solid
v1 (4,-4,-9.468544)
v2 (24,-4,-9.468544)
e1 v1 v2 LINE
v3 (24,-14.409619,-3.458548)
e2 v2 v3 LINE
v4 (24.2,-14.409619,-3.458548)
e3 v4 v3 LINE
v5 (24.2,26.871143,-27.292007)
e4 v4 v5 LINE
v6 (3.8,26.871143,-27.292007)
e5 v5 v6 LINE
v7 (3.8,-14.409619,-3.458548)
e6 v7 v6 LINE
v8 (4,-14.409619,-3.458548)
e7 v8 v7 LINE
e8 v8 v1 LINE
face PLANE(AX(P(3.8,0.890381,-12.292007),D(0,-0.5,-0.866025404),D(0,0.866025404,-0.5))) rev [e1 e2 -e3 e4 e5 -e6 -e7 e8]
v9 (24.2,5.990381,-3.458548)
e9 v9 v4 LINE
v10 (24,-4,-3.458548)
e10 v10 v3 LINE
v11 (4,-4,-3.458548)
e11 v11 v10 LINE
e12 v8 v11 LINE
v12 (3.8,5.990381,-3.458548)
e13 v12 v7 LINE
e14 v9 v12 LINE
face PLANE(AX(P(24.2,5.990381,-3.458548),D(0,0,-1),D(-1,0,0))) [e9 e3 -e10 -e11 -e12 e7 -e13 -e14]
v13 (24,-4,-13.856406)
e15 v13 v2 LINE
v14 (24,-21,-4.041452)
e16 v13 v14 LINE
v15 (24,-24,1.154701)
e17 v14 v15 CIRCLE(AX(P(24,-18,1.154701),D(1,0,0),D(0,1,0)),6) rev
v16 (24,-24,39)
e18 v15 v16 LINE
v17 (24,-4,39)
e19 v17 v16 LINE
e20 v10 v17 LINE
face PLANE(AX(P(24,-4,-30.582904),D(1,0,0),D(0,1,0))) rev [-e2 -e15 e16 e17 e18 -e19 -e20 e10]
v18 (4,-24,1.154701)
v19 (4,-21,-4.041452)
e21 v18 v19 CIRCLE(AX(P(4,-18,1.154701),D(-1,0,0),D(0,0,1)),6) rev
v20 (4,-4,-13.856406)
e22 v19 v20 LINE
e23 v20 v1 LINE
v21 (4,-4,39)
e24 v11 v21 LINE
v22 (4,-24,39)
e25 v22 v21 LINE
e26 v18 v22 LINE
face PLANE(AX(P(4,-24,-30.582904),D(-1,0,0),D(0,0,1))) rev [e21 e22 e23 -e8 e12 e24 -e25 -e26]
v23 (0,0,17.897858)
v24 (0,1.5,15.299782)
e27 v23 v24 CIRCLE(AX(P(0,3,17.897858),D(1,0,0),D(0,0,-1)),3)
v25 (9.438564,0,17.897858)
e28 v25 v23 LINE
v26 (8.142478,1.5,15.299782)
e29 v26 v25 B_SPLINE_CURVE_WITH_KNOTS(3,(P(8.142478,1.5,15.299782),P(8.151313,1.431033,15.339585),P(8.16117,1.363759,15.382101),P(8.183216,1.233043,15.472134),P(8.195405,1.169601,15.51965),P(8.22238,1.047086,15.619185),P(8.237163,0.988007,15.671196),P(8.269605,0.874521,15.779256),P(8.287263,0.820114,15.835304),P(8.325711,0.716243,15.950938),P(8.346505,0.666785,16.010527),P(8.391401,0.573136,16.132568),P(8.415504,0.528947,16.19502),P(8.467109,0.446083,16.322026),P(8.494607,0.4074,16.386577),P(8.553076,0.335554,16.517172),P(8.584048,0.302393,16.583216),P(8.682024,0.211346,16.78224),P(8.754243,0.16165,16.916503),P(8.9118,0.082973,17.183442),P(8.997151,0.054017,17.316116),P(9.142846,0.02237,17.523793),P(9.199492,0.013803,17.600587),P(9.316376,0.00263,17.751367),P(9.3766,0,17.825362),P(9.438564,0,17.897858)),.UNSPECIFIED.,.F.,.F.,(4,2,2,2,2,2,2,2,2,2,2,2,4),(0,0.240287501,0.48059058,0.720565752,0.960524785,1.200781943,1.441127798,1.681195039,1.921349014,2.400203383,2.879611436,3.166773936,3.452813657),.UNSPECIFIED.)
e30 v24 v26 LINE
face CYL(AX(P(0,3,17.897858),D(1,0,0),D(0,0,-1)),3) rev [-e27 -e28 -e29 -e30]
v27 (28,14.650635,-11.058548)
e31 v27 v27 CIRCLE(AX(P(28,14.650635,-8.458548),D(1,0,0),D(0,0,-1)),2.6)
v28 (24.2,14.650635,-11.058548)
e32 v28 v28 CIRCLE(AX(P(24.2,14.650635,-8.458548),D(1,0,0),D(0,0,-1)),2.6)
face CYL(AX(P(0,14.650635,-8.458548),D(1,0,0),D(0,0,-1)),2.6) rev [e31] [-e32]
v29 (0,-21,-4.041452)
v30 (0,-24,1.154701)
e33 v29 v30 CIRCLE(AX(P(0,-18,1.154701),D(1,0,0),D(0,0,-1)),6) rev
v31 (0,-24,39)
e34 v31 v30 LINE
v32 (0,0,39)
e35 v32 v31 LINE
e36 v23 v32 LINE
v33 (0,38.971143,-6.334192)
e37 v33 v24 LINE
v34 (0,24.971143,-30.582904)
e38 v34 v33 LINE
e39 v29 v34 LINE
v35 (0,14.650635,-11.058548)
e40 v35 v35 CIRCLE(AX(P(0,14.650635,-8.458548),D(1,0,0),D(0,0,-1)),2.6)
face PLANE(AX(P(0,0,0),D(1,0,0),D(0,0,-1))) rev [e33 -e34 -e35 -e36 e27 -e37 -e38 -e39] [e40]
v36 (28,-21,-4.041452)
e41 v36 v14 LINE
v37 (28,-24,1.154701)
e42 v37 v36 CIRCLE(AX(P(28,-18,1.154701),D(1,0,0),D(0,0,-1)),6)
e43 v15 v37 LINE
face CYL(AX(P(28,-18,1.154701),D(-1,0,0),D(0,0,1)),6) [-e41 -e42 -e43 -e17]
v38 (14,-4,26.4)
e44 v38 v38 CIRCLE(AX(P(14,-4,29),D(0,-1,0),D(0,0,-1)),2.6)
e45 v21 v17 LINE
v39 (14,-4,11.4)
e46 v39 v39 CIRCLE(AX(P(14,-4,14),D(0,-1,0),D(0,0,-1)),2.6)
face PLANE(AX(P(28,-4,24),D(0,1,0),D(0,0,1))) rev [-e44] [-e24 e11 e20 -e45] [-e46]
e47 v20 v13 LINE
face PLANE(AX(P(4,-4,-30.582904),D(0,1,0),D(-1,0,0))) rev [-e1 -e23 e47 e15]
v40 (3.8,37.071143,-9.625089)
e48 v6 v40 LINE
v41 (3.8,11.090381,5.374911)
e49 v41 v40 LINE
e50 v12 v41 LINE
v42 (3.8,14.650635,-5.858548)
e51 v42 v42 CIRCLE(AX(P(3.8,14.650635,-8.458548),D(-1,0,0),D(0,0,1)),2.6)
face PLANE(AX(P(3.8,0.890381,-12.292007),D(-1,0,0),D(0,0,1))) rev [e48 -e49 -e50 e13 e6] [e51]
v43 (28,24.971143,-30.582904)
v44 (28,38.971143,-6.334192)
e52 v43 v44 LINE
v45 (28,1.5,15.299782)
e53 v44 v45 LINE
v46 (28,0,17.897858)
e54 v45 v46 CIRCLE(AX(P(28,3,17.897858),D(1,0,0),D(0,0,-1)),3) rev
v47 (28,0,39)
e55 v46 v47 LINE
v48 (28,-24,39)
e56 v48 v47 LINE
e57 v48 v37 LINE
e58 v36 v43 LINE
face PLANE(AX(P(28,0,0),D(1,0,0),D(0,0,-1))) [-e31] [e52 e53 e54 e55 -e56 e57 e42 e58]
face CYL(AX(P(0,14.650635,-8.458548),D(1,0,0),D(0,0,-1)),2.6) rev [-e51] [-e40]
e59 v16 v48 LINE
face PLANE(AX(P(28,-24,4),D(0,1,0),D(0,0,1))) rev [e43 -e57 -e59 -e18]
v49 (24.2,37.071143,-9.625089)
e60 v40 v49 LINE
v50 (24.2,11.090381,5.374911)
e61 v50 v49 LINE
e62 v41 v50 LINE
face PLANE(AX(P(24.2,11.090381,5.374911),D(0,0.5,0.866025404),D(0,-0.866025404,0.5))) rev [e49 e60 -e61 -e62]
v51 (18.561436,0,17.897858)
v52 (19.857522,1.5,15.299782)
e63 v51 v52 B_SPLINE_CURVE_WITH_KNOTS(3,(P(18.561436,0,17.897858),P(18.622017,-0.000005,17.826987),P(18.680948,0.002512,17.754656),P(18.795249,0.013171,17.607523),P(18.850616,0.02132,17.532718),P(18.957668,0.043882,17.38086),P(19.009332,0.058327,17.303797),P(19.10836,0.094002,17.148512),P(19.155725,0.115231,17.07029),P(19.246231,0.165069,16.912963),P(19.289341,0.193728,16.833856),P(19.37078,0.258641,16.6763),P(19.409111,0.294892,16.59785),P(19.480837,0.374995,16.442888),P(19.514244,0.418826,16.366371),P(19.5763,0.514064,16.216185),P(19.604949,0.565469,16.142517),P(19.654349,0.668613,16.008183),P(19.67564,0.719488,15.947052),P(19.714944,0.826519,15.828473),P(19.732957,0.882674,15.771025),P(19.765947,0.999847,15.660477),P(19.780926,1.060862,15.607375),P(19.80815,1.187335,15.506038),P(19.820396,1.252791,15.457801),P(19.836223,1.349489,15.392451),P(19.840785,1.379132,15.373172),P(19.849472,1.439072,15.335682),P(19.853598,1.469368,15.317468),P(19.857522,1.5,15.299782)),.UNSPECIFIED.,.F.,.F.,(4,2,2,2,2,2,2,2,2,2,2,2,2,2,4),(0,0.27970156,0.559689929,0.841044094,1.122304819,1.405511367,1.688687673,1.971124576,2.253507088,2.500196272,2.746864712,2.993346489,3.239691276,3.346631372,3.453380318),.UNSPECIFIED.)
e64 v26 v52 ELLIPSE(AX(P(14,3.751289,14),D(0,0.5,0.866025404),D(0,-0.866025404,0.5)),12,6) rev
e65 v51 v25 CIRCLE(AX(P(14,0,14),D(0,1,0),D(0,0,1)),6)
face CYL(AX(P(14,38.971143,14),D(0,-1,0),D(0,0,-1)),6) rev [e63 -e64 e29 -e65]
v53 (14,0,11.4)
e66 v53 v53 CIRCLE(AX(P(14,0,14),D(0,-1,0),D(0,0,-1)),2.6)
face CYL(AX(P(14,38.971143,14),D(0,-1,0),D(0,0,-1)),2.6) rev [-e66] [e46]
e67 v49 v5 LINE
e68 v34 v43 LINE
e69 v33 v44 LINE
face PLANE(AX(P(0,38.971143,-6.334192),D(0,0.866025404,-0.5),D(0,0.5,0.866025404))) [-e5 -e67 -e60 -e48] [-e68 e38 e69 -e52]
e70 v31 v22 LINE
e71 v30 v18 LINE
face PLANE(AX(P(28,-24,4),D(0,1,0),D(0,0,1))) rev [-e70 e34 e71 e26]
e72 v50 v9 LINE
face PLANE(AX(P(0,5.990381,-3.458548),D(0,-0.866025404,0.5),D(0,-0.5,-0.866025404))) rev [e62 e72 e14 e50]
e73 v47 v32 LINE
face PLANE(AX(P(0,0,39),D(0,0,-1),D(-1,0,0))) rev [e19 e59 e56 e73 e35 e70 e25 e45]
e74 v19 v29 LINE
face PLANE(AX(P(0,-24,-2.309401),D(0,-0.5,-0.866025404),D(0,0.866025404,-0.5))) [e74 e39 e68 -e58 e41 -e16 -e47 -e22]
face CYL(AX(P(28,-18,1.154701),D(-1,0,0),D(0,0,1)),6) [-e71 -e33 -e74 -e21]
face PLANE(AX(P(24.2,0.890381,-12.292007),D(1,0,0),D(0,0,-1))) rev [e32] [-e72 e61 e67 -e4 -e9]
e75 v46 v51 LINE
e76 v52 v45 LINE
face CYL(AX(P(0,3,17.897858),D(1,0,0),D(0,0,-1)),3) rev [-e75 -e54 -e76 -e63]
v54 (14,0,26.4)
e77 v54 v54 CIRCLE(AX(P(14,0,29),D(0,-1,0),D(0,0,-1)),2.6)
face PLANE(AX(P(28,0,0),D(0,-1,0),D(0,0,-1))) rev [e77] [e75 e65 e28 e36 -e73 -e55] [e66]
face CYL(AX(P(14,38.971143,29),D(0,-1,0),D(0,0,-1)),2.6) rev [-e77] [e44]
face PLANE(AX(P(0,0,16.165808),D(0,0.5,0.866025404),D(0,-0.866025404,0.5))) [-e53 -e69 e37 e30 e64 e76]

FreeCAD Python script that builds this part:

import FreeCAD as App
import Part
import Sketcher

V = App.Vector
Q = App.Units.Quantity


def edges_at(feature, points):
    """Names of the edges that pass closest to the given points."""
    edges = feature.Shape.Edges
    near = lambda p: min(range(len(edges)), key=lambda i: edges[i].distToShape(Part.Vertex(*p))[0])
    return sorted({f"Edge{near(p) + 1}" for p in points})


def add_polygon(sketch, points):
    """Adds a closed chain of lines whose ends are joined by coincident constraints."""
    first, n = sketch.GeometryCount, len(points)
    for a, b in zip(points, points[1:] + points[:1]):
        sketch.addGeometry(Part.LineSegment(App.Vector(*a, 0), App.Vector(*b, 0)), False)
    for i in range(n):
        sketch.addConstraint(Sketcher.Constraint("Coincident", first + i, 2, first + (i + 1) % n, 1))

doc = App.newDocument("Part")
params = doc.addObject("Spreadsheet::Sheet", "Params")
for row, (alias, value) in enumerate([
    ("sketch1_width", "4 mm"),
    ("sketch1_width2", "20 mm"),
    ("pad1_length", "28 mm"),
    ("sketch2_width", "24 mm"),
    ("sketch2_length", "28 mm"),
    ("sketch2_length2", "45 mm"),
    ("pad2_length", "28 mm"),
    ("sketch3_width", "20.4 mm"),
    ("pocket1_length", "30 mm"),
    ("sketch4_width", "20.4 mm"),
    ("pocket2_length", "20.4 mm"),
    ("sketch5_diameter", "5.2 mm"),
    ("sketch6_width", "20 mm"),
    ("sketch7_width", "4 mm"),
    ("sketch7_height", "20 mm"),
    ("pad3_length", "20 mm"),
    ("sketch8_width", "28 mm"),
    ("sketch8_width2", "4 mm"),
    ("sketch8_height", "24 mm"),
    ("pad4_length", "15 mm"),
    ("sketch9_diameter", "5.2 mm"),
    ("sketch10_diameter", "12 mm"),
    ("fillet_radius", "3 mm"),
    ("fillet2_radius", "6 mm"),
], start=1):
    params.set(f"A{row}", alias)
    params.set(f"B{row}", "=" + value)
    params.setAlias(f"B{row}", alias)

body = doc.addObject("PartDesign::Body", "Body")

# Sketch on YZ plane
sketch1 = body.newObject("Sketcher::SketchObject", "Sketch")
sketch1.AttachmentSupport = (doc.getObject("YZ_Plane"), [""])
sketch1.MapMode = "FlatFace"
add_polygon(sketch1, [(0, 0), (0, 24), (-4, 24), (-4, 4), (-24, 4), (-24, 0)])  # lines 0-5
sketch1.addConstraint([
    Sketcher.Constraint("Vertical", 0),
    Sketcher.Constraint("Horizontal", 1),
    Sketcher.Constraint("Vertical", 2),
    Sketcher.Constraint("Horizontal", 3),
    Sketcher.Constraint("Vertical", 4),
    Sketcher.Constraint("Horizontal", 5),
    Sketcher.Constraint("Coincident", 5, 2, -1, 1),
    Sketcher.Constraint("Equal", 5, 0),
    Sketcher.Constraint("Equal", 3, 2),
    Sketcher.Constraint("DistanceX", 1, 2, 1, 1, Q("4 mm")),
    Sketcher.Constraint("DistanceX", 3, 2, 3, 1, Q("20 mm")),
])
sketch1.setExpression("Constraints[15]", "Params.sketch1_width")
sketch1.setExpression("Constraints[16]", "Params.sketch1_width2")
pad1 = body.newObject("PartDesign::Pad", "Pad")
pad1.Profile = sketch1
pad1.setExpression("Length", "Params.pad1_length")

# Sketch on YZ plane
sketch2 = body.newObject("Sketcher::SketchObject", "Sketch001")
sketch2.AttachmentSupport = (doc.getObject("YZ_Plane"), [""])
sketch2.MapMode = "FlatFace"
sketch2.AttachmentOffset = App.Placement(V(0, 0, 28), App.Rotation())
add_polygon(sketch2, [(-24, -2.3), (25, -30.6), (39, -6.3), (0, 16.2), (0, 0), (-24, 0)])  # lines 0-5
sketch2.addConstraint([
    Sketcher.Constraint("Vertical", 3),
    Sketcher.Constraint("Horizontal", 4),
    Sketcher.Constraint("Vertical", 5),
    Sketcher.Constraint("Coincident", 3, 2, -1, 1),
    Sketcher.Constraint("Perpendicular", 0, 1),
    Sketcher.Constraint("Perpendicular", 1, 2),
    Sketcher.Constraint("DistanceX", 4, 2, 4, 1, Q("24 mm")),
    Sketcher.Constraint("Angle", 0, Q("-30 deg")),
    Sketcher.Constraint("Distance", 1, Q("28 mm")),
    Sketcher.Constraint("Distance", 2, Q("45 mm")),
    Sketcher.Constraint("DistanceY", 5, 2, 5, 1, Q("2.309401 mm")),
])
sketch2.setExpression("Constraints[12]", "Params.sketch2_width")
sketch2.setExpression("Constraints[14]", "Params.sketch2_length")
sketch2.setExpression("Constraints[15]", "Params.sketch2_length2")
pad2 = body.newObject("PartDesign::Pad", "Pad001")
pad2.Profile = sketch2
pad2.setExpression("Length", "Params.pad2_length")
pad2.Reversed = True

# Sketch on an angled plane
sketch3 = body.newObject("Sketcher::SketchObject", "Sketch002")
sketch3.Placement = App.Placement(V(0, 31.971143, -18.458548), App.Rotation(V(1, 0, 0), V(0, -0.5, -0.866025404), V(0, 0.866025404, -0.5), "ZXY"))
add_polygon(sketch3, [(4, 10), (4, -10), (24, -10), (24, 10)])  # lines 0-3
sketch3.addConstraint([
    Sketcher.Constraint("Vertical", 0),
    Sketcher.Constraint("Horizontal", 1),
    Sketcher.Constraint("Vertical", 2),
    Sketcher.Constraint("Horizontal", 3),
    Sketcher.Constraint("Equal", 3, 0),
    Sketcher.Constraint("DistanceX", 1, 1, 1, 2, Q("20.4 mm")),
    Sketcher.Constraint("DistanceX", -1, 1, 0, 2, Q("3.8 mm")),
    Sketcher.Constraint("DistanceY", 0, 2, -1, 1, Q("10.2 mm")),
])
sketch3.setExpression("Constraints[9]", "Params.sketch3_width")
pocket1 = body.newObject("PartDesign::Pocket", "Pocket")
pocket1.Profile = sketch3
pocket1.setExpression("Length", "Params.pocket1_length")

# Sketch on YZ plane
sketch4 = body.newObject("Sketcher::SketchObject", "Sketch003")
sketch4.AttachmentSupport = (doc.getObject("YZ_Plane"), [""])
sketch4.MapMode = "FlatFace"
sketch4.AttachmentOffset = App.Placement(V(0, 0, 3.8), App.Rotation())
add_polygon(sketch4, [(1, -12), (6, -3), (-14, -3)])  # lines 0-2
sketch4.addConstraint([
    Sketcher.Constraint("Horizontal", 1),
    Sketcher.Constraint("Perpendicular", 0, 2),
    Sketcher.Constraint("Angle", 0, Q("60 deg")),
    Sketcher.Constraint("DistanceX", 1, 2, 1, 1, Q("20.4 mm")),
    Sketcher.Constraint("DistanceX", -1, 1, 0, 2, Q("5.990381 mm")),
    Sketcher.Constraint("DistanceY", 0, 2, -1, 1, Q("3.458548 mm")),
])
sketch4.setExpression("Constraints[6]", "Params.sketch4_width")
pocket2 = body.newObject("PartDesign::Pocket", "Pocket001")
pocket2.Profile = sketch4
pocket2.setExpression("Length", "Params.pocket2_length")
pocket2.Reversed = True

# Sketch on YZ plane
sketch5 = body.newObject("Sketcher::SketchObject", "Sketch004")
sketch5.AttachmentSupport = (doc.getObject("YZ_Plane"), [""])
sketch5.MapMode = "FlatFace"
sketch5.AttachmentOffset = App.Placement(V(0, 0, 28), App.Rotation())
sketch5.addGeometry(Part.Circle(V(14.7, -8.5, 0), V(0, 0, 1), 2.6), False)
sketch5.addConstraint([
    Sketcher.Constraint("Diameter", 0, Q("5.2 mm")),
    Sketcher.Constraint("DistanceY", 0, 3, -1, 1, Q("8.458548 mm")),
    Sketcher.Constraint("DistanceX", -1, 1, 0, 3, Q("14.650635 mm")),
])
sketch5.setExpression("Constraints[0]", "Params.sketch5_diameter")
pocket3 = body.newObject("PartDesign::Pocket", "Pocket002")
pocket3.Profile = sketch5
pocket3.Type = "ThroughAll"

# Sketch on XY plane
sketch6 = body.newObject("Sketcher::SketchObject", "Sketch005")
sketch6.AttachmentSupport = (doc.getObject("XY_Plane"), [""])
sketch6.MapMode = "FlatFace"
sketch6.AttachmentOffset = App.Placement(V(0, 0, 4), App.Rotation())
add_polygon(sketch6, [(4, -4), (4, -24), (24, -24), (24, -4)])  # lines 0-3
sketch6.addConstraint([
    Sketcher.Constraint("Vertical", 0),
    Sketcher.Constraint("Horizontal", 1),
    Sketcher.Constraint("Vertical", 2),
    Sketcher.Constraint("Horizontal", 3),
    Sketcher.Constraint("Equal", 3, 0),
    Sketcher.Constraint("DistanceX", 1, 1, 1, 2, Q("20 mm")),
    Sketcher.Constraint("DistanceX", -1, 1, 0, 2, Q("4 mm")),
    Sketcher.Constraint("DistanceY", 0, 2, -1, 1, Q("24 mm")),
])
sketch6.setExpression("Constraints[9]", "Params.sketch6_width")
pocket4 = body.newObject("PartDesign::Pocket", "Pocket003")
pocket4.Profile = sketch6
pocket4.Type = "ThroughAll"

# Sketch on XY plane
sketch7 = body.newObject("Sketcher::SketchObject", "Sketch006")
sketch7.AttachmentSupport = (doc.getObject("XY_Plane"), [""])
sketch7.MapMode = "FlatFace"
sketch7.AttachmentOffset = App.Placement(V(0, 0, 4), App.Rotation())
add_polygon(sketch7, [(0, -4), (0, -24), (4, -24), (4, -4)])  # lines 0-3
add_polygon(sketch7, [(24, -4), (24, -24), (28, -24), (28, -4)])  # lines 4-7
sketch7.addConstraint([
    Sketcher.Constraint("Vertical", 0),
    Sketcher.Constraint("Horizontal", 1),
    Sketcher.Constraint("Vertical", 2),
    Sketcher.Constraint("Horizontal", 3),
    Sketcher.Constraint("Vertical", 4),
    Sketcher.Constraint("Horizontal", 5),
    Sketcher.Constraint("Vertical", 6),
    Sketcher.Constraint("Horizontal", 7),
    Sketcher.Constraint("PointOnObject", 0, 2, -2),
    Sketcher.Constraint("Horizontal", 1, 2, 4, 2),
    Sketcher.Constraint("Horizontal", 3, 2, 6, 2),
    Sketcher.Constraint("Equal", 3, 5),
    Sketcher.Constraint("DistanceX", 1, 1, 1, 2, Q("4 mm")),
    Sketcher.Constraint("DistanceY", 0, 2, 0, 1, Q("20 mm")),
    Sketcher.Constraint("DistanceY", 0, 2, -1, 1, Q("24 mm")),
    Sketcher.Constraint("DistanceX", -1, 1, 4, 2, Q("24 mm")),
])
sketch7.setExpression("Constraints[20]", "Params.sketch7_width")
sketch7.setExpression("Constraints[21]", "Params.sketch7_height")
pad3 = body.newObject("PartDesign::Pad", "Pad002")
pad3.Profile = sketch7
pad3.setExpression("Length", "Params.pad3_length")

# Sketch on XY plane
sketch8 = body.newObject("Sketcher::SketchObject", "Sketch007")
sketch8.AttachmentSupport = (doc.getObject("XY_Plane"), [""])
sketch8.MapMode = "FlatFace"
sketch8.AttachmentOffset = App.Placement(V(0, 0, 24), App.Rotation())
add_polygon(sketch8, [(28, 0), (0, 0), (0, -24), (4, -24), (4, -4), (24, -4), (24, -24), (28, -24)])  # lines 0-7
sketch8.addConstraint([
    Sketcher.Constraint("Horizontal", 0),
    Sketcher.Constraint("Vertical", 1),
    Sketcher.Constraint("Horizontal", 2),
    Sketcher.Constraint("Vertical", 3),
    Sketcher.Constraint("Horizontal", 4),
    Sketcher.Constraint("Vertical", 5),
    Sketcher.Constraint("Horizontal", 6),
    Sketcher.Constraint("Vertical", 7),
    Sketcher.Constraint("Coincident", 0, 2, -1, 1),
    Sketcher.Constraint("Horizontal", 2, 2, 5, 2),
    Sketcher.Constraint("Equal", 2, 6),
    Sketcher.Constraint("Equal", 4, 3),
    Sketcher.Constraint("DistanceX", 0, 2, 0, 1, Q("28 mm")),
    Sketcher.Constraint("DistanceX", 2, 1, 2, 2, Q("4 mm")),
    Sketcher.Constraint("DistanceY", 1, 2, 1, 1, Q("24 mm")),
])
sketch8.setExpression("Constraints[20]", "Params.sketch8_width")
sketch8.setExpression("Constraints[21]", "Params.sketch8_width2")
sketch8.setExpression("Constraints[22]", "Params.sketch8_height")
pad4 = body.newObject("PartDesign::Pad", "Pad003")
pad4.Profile = sketch8
pad4.setExpression("Length", "Params.pad4_length")

# Sketch on XZ plane
sketch9 = body.newObject("Sketcher::SketchObject", "Sketch008")
sketch9.AttachmentSupport = (doc.getObject("XZ_Plane"), [""])
sketch9.MapMode = "FlatFace"
sketch9.AttachmentOffset = App.Placement(V(0, 0, 4), App.Rotation())
sketch9.addGeometry([
    Part.Circle(V(14, 29, 0), V(0, 0, 1), 2.6),
    Part.Circle(V(14, 14, 0), V(0, 0, 1), 2.6),
], False)
sketch9.addConstraint([
    Sketcher.Constraint("Equal", 0, 1),
    Sketcher.Constraint("Vertical", 0, 3, 1, 3),
    Sketcher.Constraint("Diameter", 0, Q("5.2 mm")),
    Sketcher.Constraint("DistanceX", -1, 1, 0, 3, Q("14 mm")),
    Sketcher.Constraint("DistanceY", -1, 1, 0, 3, Q("29 mm")),
    Sketcher.Constraint("DistanceY", -1, 1, 1, 3, Q("14 mm")),
])
sketch9.setExpression("Constraints[2]", "Params.sketch9_diameter")
pocket5 = body.newObject("PartDesign::Pocket", "Pocket004")
pocket5.Profile = sketch9
pocket5.Type = "ThroughAll"

# Sketch on XZ plane
sketch10 = body.newObject("Sketcher::SketchObject", "Sketch009")
sketch10.AttachmentSupport = (doc.getObject("XZ_Plane"), [""])
sketch10.MapMode = "FlatFace"
sketch10.addGeometry(Part.Circle(V(14, 14, 0), V(0, 0, 1), 6), False)
sketch10.addConstraint([
    Sketcher.Constraint("Diameter", 0, Q("12 mm")),
    Sketcher.Constraint("DistanceX", -1, 1, 0, 3, Q("14 mm")),
    Sketcher.Constraint("DistanceY", -1, 1, 0, 3, Q("14 mm")),
])
sketch10.setExpression("Constraints[0]", "Params.sketch10_diameter")
pocket6 = body.newObject("PartDesign::Pocket", "Pocket005")
pocket6.Profile = sketch10
pocket6.Type = "ThroughAll"
doc.recompute()

fillet = body.newObject("PartDesign::Fillet", "Fillet")
fillet.Base = (pocket6, edges_at(pocket6, [(23.798, 0, 16.166), (4.202, 0, 16.166)]))
fillet.setExpression("Radius", "Params.fillet_radius")
doc.recompute()

fillet2 = body.newObject("PartDesign::Fillet", "Fillet001")
fillet2.Base = (fillet, edges_at(fillet, [(2, -24, -2.309), (26, -24, -2.309)]))
fillet2.setExpression("Radius", "Params.fillet2_radius")

doc.recompute()
